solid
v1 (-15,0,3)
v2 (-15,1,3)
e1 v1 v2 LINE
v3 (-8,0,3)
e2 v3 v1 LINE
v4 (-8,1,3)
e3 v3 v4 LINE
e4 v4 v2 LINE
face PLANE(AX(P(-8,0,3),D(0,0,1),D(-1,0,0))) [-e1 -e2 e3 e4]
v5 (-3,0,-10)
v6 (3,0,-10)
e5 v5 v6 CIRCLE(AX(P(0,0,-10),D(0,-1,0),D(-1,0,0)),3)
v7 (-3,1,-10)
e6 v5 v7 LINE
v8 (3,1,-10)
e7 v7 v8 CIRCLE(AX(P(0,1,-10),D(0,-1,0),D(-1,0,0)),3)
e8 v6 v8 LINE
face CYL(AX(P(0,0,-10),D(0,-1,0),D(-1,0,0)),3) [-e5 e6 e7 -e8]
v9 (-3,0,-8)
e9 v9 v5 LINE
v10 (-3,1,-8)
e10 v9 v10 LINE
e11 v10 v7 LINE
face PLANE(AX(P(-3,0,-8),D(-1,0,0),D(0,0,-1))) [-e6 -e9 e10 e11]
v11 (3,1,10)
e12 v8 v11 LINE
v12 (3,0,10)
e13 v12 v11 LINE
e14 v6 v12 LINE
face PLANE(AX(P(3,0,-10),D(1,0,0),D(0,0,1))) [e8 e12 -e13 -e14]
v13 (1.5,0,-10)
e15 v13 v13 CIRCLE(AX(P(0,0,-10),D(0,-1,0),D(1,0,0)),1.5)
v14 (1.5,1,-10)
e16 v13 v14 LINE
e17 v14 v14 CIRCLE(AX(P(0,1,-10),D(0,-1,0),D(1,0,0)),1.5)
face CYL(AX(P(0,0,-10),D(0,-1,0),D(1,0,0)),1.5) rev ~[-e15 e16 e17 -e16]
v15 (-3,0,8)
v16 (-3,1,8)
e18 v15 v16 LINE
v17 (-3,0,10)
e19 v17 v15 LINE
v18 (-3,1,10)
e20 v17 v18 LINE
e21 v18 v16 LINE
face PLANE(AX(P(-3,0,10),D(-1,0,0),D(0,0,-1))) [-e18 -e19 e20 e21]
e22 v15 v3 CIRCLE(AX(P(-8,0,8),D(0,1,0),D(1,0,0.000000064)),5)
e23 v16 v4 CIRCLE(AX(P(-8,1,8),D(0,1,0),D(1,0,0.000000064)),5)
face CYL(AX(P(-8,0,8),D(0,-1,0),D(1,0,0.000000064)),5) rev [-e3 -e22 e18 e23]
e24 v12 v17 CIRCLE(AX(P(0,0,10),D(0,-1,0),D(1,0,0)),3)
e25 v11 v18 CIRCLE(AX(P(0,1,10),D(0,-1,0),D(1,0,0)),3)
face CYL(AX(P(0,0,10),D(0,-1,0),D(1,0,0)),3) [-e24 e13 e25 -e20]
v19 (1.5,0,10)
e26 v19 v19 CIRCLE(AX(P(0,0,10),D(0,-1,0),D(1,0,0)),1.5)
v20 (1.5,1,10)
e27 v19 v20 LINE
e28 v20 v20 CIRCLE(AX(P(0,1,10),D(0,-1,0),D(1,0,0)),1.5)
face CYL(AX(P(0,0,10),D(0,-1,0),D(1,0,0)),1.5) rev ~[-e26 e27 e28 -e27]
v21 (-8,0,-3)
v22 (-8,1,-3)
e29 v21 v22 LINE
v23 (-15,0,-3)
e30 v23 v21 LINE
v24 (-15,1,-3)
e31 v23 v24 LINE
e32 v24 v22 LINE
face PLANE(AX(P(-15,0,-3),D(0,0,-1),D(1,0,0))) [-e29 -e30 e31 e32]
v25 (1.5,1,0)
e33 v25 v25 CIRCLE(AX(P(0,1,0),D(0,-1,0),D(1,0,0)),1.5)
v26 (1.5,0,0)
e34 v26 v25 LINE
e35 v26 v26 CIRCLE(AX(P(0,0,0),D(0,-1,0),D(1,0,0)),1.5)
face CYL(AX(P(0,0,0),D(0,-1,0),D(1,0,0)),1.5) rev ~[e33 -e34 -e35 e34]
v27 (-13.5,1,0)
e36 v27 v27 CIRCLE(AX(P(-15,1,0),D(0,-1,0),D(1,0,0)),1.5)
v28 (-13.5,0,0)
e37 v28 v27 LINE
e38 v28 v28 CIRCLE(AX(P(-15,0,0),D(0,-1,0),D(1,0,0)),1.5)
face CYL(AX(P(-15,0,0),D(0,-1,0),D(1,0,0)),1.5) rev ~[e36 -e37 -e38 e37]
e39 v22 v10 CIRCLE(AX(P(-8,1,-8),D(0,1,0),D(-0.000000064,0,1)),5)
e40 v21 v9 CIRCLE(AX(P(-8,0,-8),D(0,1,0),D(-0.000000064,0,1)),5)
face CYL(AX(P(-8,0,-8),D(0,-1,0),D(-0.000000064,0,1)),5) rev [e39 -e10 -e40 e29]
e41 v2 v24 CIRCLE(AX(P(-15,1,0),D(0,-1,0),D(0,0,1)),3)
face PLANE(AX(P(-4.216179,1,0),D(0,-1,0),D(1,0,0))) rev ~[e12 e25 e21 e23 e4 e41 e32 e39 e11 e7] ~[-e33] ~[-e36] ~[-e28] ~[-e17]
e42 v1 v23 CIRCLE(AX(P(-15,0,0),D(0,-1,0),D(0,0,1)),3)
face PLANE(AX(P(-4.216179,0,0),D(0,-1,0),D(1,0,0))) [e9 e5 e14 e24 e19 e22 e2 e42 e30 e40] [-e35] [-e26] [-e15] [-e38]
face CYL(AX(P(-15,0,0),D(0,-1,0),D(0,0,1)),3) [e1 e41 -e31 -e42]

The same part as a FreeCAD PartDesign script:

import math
import FreeCAD as App
import Part
import Sketcher

V = App.Vector
Q = App.Units.Quantity

doc = App.newDocument("Part")
body = doc.addObject("PartDesign::Body", "Body")

# Sketch on XZ plane
sketch1 = doc.addObject("Sketcher::SketchObject", "Sketch")
body.addObject(sketch1)
sketch1.AttachmentSupport = (doc.XZ_Plane, [""])
sketch1.MapMode = "FlatFace"
sketch1.addGeometry([
    Part.ArcOfCircle(Part.Circle(V(0, 10, 0), V(0, 0, 1), 3), math.radians(0), math.radians(180)),  # 0
    Part.LineSegment(V(-3, 10, 0), V(-3, 8, 0)),  # 1
    Part.ArcOfCircle(Part.Circle(V(-8, 8, 0), V(0, 0, 1), 5), math.radians(-90.000004), math.radians(0.000004)),  # 2
    Part.LineSegment(V(-8, 3, 0), V(-15, 3, 0)),  # 3
    Part.ArcOfCircle(Part.Circle(V(-15, 0, 0), V(0, 0, 1), 3), math.radians(90), math.radians(270)),  # 4
    Part.LineSegment(V(-15, -3, 0), V(-8, -3, 0)),  # 5
    Part.ArcOfCircle(Part.Circle(V(-8, -8, 0), V(0, 0, 1), 5), math.radians(-0.000004), math.radians(90.000004)),  # 6
    Part.LineSegment(V(-3, -8, 0), V(-3, -10, 0)),  # 7
    Part.ArcOfCircle(Part.Circle(V(0, -10, 0), V(0, 0, 1), 3), math.radians(180), math.radians(360)),  # 8
    Part.LineSegment(V(3, -10, 0), V(3, 10, 0)),  # 9
    Part.Circle(V(0, -10, 0), V(0, 0, 1), 1.5),  # 10
    Part.Circle(V(-15, 0, 0), V(0, 0, 1), 1.5),  # 11
    Part.Circle(V(0, 0, 0), V(0, 0, 1), 1.5),  # 12
    Part.Circle(V(0, 10, 0), V(0, 0, 1), 1.5),  # 13
], False)
sketch1.addConstraint([
    Sketcher.Constraint("Tangent", 0, 2, 1, 1),
    Sketcher.Constraint("Tangent", 1, 2, 2, 2),
    Sketcher.Constraint("Tangent", 2, 1, 3, 1),
    Sketcher.Constraint("Tangent", 3, 2, 4, 1),
    Sketcher.Constraint("Tangent", 4, 2, 5, 1),
    Sketcher.Constraint("Tangent", 5, 2, 6, 2),
    Sketcher.Constraint("Tangent", 6, 1, 7, 1),
    Sketcher.Constraint("Tangent", 7, 2, 8, 1),
    Sketcher.Constraint("Tangent", 8, 2, 9, 1),
    Sketcher.Constraint("Tangent", 9, 2, 0, 1),
    Sketcher.Constraint("Vertical", 1),
    Sketcher.Constraint("Horizontal", 3),
    Sketcher.Constraint("Horizontal", 5),
    Sketcher.Constraint("Vertical", 7),
    Sketcher.Constraint("Vertical", 9),
    Sketcher.Constraint("Coincident", 12, 3, -1, 1),
    Sketcher.Constraint("Coincident", 10, 3, 8, 3),
    Sketcher.Constraint("Coincident", 11, 3, 4, 3),
    Sketcher.Constraint("Coincident", 13, 3, 0, 3),
    Sketcher.Constraint("Equal", 0, 4),
    Sketcher.Constraint("Equal", 2, 6),
    Sketcher.Constraint("Equal", 4, 8),
    Sketcher.Constraint("Equal", 10, 11),
    Sketcher.Constraint("Equal", 11, 12),
    Sketcher.Constraint("Equal", 12, 13),
    Sketcher.Constraint("Symmetric", 0, 3, 8, 3, -1, 1),
    Sketcher.Constraint("PointOnObject", 4, 3, -1),
    Sketcher.Constraint("Diameter", 10, Q("3 mm")),
    Sketcher.Constraint("Radius", 0, Q("3 mm")),
    Sketcher.Constraint("Radius", 2, Q("5 mm")),
    Sketcher.Constraint("DistanceX", 3, 2, 3, 1, Q("7 mm")),
    Sketcher.Constraint("DistanceY", 1, 2, 1, 1, Q("2 mm")),
])
pad1 = doc.addObject("PartDesign::Pad", "Pad")
body.addObject(pad1)
pad1.Profile = sketch1
pad1.Length = 1
pad1.Reversed = True

doc.recompute()
